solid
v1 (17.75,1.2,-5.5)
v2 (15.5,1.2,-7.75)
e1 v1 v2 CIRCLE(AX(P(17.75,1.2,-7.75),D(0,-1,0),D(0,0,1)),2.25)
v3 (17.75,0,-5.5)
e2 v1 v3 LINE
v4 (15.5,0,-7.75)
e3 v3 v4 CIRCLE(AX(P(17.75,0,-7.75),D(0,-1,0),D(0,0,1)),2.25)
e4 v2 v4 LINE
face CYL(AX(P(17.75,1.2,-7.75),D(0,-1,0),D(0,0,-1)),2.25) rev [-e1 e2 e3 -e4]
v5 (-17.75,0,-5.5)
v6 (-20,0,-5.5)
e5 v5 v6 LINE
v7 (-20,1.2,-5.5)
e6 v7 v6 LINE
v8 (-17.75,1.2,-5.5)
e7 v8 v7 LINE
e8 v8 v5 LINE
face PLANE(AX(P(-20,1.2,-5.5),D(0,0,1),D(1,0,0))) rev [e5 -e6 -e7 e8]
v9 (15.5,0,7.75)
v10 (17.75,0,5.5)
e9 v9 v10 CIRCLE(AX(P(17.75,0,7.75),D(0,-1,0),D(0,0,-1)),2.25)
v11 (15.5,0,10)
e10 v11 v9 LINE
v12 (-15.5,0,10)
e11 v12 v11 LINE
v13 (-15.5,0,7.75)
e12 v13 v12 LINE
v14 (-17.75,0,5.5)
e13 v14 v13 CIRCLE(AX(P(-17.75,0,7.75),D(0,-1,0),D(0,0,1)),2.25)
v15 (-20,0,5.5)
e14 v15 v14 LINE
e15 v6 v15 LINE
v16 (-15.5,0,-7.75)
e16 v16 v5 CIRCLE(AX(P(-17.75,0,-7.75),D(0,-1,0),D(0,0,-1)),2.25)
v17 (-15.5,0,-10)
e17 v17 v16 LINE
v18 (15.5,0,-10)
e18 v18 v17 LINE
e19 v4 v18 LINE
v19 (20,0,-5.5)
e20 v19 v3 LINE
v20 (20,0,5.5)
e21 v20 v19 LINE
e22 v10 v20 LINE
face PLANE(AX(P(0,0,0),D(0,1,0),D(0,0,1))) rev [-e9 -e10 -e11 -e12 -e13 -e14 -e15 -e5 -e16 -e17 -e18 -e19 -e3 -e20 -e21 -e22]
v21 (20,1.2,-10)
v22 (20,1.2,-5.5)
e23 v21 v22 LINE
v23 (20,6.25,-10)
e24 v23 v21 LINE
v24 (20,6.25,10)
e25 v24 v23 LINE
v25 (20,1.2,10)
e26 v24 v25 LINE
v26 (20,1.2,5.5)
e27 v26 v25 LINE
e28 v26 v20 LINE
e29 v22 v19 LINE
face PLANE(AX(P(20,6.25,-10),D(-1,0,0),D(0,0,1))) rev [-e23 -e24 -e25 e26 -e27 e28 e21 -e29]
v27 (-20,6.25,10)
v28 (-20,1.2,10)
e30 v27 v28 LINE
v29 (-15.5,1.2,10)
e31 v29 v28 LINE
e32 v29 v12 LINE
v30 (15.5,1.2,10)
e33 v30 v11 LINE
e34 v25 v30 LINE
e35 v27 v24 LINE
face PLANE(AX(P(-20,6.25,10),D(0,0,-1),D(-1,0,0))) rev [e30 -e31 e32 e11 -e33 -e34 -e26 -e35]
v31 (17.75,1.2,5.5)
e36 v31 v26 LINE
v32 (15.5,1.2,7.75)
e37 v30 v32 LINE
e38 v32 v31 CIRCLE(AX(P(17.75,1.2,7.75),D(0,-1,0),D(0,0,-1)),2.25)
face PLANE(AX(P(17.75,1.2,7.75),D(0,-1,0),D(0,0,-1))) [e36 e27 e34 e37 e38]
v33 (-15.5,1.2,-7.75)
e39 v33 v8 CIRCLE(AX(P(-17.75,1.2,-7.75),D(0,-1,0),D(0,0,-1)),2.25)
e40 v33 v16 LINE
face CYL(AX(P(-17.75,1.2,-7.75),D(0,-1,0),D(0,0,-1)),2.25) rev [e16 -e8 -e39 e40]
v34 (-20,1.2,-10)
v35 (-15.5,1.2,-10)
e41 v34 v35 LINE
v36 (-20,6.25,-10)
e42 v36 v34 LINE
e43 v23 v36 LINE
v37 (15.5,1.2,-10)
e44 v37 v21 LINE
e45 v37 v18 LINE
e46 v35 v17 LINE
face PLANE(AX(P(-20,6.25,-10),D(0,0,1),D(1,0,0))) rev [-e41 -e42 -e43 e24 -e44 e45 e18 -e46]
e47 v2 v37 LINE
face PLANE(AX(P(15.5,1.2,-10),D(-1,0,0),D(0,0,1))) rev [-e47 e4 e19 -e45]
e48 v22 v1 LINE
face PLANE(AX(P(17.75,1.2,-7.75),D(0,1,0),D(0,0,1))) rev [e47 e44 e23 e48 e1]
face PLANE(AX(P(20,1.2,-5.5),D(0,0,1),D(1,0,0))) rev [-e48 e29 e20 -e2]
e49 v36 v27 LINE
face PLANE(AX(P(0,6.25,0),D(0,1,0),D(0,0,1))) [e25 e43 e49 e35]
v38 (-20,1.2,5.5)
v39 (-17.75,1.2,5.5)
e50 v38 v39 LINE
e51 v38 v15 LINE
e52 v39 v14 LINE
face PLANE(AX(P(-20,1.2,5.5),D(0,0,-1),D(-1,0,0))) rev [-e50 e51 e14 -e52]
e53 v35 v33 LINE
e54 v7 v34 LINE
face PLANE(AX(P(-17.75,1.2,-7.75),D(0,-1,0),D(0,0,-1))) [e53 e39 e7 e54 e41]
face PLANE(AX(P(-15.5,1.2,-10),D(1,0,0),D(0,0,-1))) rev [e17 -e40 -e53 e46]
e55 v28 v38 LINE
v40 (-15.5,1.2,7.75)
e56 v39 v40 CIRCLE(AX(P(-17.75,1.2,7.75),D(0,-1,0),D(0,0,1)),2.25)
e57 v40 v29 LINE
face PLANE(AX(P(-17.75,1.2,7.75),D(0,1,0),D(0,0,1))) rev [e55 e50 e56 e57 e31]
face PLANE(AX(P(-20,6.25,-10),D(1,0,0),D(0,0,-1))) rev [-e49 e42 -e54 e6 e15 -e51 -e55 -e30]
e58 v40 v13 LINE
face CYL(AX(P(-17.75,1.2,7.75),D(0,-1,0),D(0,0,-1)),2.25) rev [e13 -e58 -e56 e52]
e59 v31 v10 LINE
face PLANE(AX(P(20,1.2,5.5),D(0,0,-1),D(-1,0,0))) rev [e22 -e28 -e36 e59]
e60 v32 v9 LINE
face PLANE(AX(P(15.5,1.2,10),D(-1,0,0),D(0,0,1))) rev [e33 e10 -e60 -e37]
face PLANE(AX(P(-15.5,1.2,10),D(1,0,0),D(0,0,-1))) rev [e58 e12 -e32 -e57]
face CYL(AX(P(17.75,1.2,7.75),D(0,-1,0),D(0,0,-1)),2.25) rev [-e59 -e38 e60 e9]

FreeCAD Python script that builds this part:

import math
import FreeCAD as App
import Part
import Sketcher
Q = App.Units.Quantity


def add_polygon(sketch, points):
    """Adds a closed chain of lines whose ends are joined by coincident constraints."""
    first, n = sketch.GeometryCount, len(points)
    for a, b in zip(points, points[1:] + points[:1]):
        sketch.addGeometry(Part.LineSegment(App.Vector(*a, 0), App.Vector(*b, 0)), False)
    for i in range(n):
        sketch.addConstraint(Sketcher.Constraint("Coincident", first + i, 2, first + (i + 1) % n, 1))

doc = App.newDocument("Part")
body = doc.addObject("PartDesign::Body", "Body")

sketch1 = body.newObject("Sketcher::SketchObject", "Sketch")
sketch1.AttachmentSupport = (doc.getObject("XZ_Plane"), [""])
sketch1.MapMode = "FlatFace"
add_polygon(sketch1, [(-20, -10), (-20, 10), (20, 10), (20, -10)])
sketch1.addConstraint(Sketcher.Constraint("Vertical", 0))
sketch1.addConstraint(Sketcher.Constraint("Horizontal", 1))
sketch1.addConstraint(Sketcher.Constraint("Vertical", 2))
sketch1.addConstraint(Sketcher.Constraint("Horizontal", 3))
sketch1.addConstraint(Sketcher.Constraint("Symmetric", 0, 2, 2, 2, -1, 1))
sketch1.addConstraint(Sketcher.Constraint("DistanceX", 1, 1, 1, 2, Q("40 mm")))
sketch1.addConstraint(Sketcher.Constraint("DistanceY", 0, 1, 0, 2, Q("20 mm")))
pad1 = body.newObject("PartDesign::Pad", "Pad")
pad1.Profile = sketch1
pad1.Length = 6.25
pad1.Reversed = True

sketch2 = body.newObject("Sketcher::SketchObject", "Sketch001")
sketch2.AttachmentSupport = (doc.getObject("XZ_Plane"), [""])
sketch2.MapMode = "FlatFace"
sketch2.addGeometry(Part.LineSegment(App.Vector(15.5, 10, 0), App.Vector(15.5, 7.75, 0)), False)
sketch2.addGeometry(Part.ArcOfCircle(Part.Circle(App.Vector(17.75, 7.75, 0), App.Vector(0, 0, 1), 2.25), math.radians(180), math.radians(270)), False)
sketch2.addGeometry(Part.LineSegment(App.Vector(17.75, 5.5, 0), App.Vector(20, 5.5, 0)), False)
sketch2.addGeometry(Part.LineSegment(App.Vector(20, 5.5, 0), App.Vector(20, 10, 0)), False)
sketch2.addGeometry(Part.LineSegment(App.Vector(20, 10, 0), App.Vector(15.5, 10, 0)), False)
sketch2.addGeometry(Part.LineSegment(App.Vector(-15.5, 10, 0), App.Vector(-20, 10, 0)), False)
sketch2.addGeometry(Part.LineSegment(App.Vector(-20, 10, 0), App.Vector(-20, 5.5, 0)), False)
sketch2.addGeometry(Part.LineSegment(App.Vector(-20, 5.5, 0), App.Vector(-17.75, 5.5, 0)), False)
sketch2.addGeometry(Part.ArcOfCircle(Part.Circle(App.Vector(-17.75, 7.75, 0), App.Vector(0, 0, 1), 2.25), math.radians(-90), math.radians(0)), False)
sketch2.addGeometry(Part.LineSegment(App.Vector(-15.5, 7.75, 0), App.Vector(-15.5, 10, 0)), False)
sketch2.addGeometry(Part.LineSegment(App.Vector(15.5, -10, 0), App.Vector(20, -10, 0)), False)
sketch2.addGeometry(Part.LineSegment(App.Vector(20, -10, 0), App.Vector(20, -5.5, 0)), False)
sketch2.addGeometry(Part.LineSegment(App.Vector(20, -5.5, 0), App.Vector(17.75, -5.5, 0)), False)
sketch2.addGeometry(Part.ArcOfCircle(Part.Circle(App.Vector(17.75, -7.75, 0), App.Vector(0, 0, 1), 2.25), math.radians(90), math.radians(180)), False)
sketch2.addGeometry(Part.LineSegment(App.Vector(15.5, -7.75, 0), App.Vector(15.5, -10, 0)), False)
sketch2.addGeometry(Part.LineSegment(App.Vector(-15.5, -10, 0), App.Vector(-15.5, -7.75, 0)), False)
sketch2.addGeometry(Part.ArcOfCircle(Part.Circle(App.Vector(-17.75, -7.75, 0), App.Vector(0, 0, 1), 2.25), math.radians(0), math.radians(90)), False)
sketch2.addGeometry(Part.LineSegment(App.Vector(-17.75, -5.5, 0), App.Vector(-20, -5.5, 0)), False)
sketch2.addGeometry(Part.LineSegment(App.Vector(-20, -5.5, 0), App.Vector(-20, -10, 0)), False)
sketch2.addGeometry(Part.LineSegment(App.Vector(-20, -10, 0), App.Vector(-15.5, -10, 0)), False)
sketch2.addConstraint(Sketcher.Constraint("Tangent", 0, 2, 1, 1))
sketch2.addConstraint(Sketcher.Constraint("Tangent", 1, 2, 2, 1))
sketch2.addConstraint(Sketcher.Constraint("Coincident", 2, 2, 3, 1))
sketch2.addConstraint(Sketcher.Constraint("Coincident", 3, 2, 4, 1))
sketch2.addConstraint(Sketcher.Constraint("Coincident", 4, 2, 0, 1))
sketch2.addConstraint(Sketcher.Constraint("Coincident", 5, 2, 6, 1))
sketch2.addConstraint(Sketcher.Constraint("Coincident", 6, 2, 7, 1))
sketch2.addConstraint(Sketcher.Constraint("Tangent", 7, 2, 8, 1))
sketch2.addConstraint(Sketcher.Constraint("Tangent", 8, 2, 9, 1))
sketch2.addConstraint(Sketcher.Constraint("Coincident", 9, 2, 5, 1))
sketch2.addConstraint(Sketcher.Constraint("Coincident", 10, 2, 11, 1))
sketch2.addConstraint(Sketcher.Constraint("Coincident", 11, 2, 12, 1))
sketch2.addConstraint(Sketcher.Constraint("Tangent", 12, 2, 13, 1))
sketch2.addConstraint(Sketcher.Constraint("Tangent", 13, 2, 14, 1))
sketch2.addConstraint(Sketcher.Constraint("Coincident", 14, 2, 10, 1))
sketch2.addConstraint(Sketcher.Constraint("Tangent", 15, 2, 16, 1))
sketch2.addConstraint(Sketcher.Constraint("Tangent", 16, 2, 17, 1))
sketch2.addConstraint(Sketcher.Constraint("Coincident", 17, 2, 18, 1))
sketch2.addConstraint(Sketcher.Constraint("Coincident", 18, 2, 19, 1))
sketch2.addConstraint(Sketcher.Constraint("Coincident", 19, 2, 15, 1))
sketch2.addConstraint(Sketcher.Constraint("Vertical", 0))
sketch2.addConstraint(Sketcher.Constraint("Horizontal", 2))
sketch2.addConstraint(Sketcher.Constraint("Vertical", 3))
sketch2.addConstraint(Sketcher.Constraint("Horizontal", 4))
sketch2.addConstraint(Sketcher.Constraint("Horizontal", 5))
sketch2.addConstraint(Sketcher.Constraint("Vertical", 6))
sketch2.addConstraint(Sketcher.Constraint("Horizontal", 7))
sketch2.addConstraint(Sketcher.Constraint("Vertical", 9))
sketch2.addConstraint(Sketcher.Constraint("Horizontal", 10))
sketch2.addConstraint(Sketcher.Constraint("Vertical", 11))
sketch2.addConstraint(Sketcher.Constraint("Horizontal", 12))
sketch2.addConstraint(Sketcher.Constraint("Vertical", 14))
sketch2.addConstraint(Sketcher.Constraint("Vertical", 15))
sketch2.addConstraint(Sketcher.Constraint("Horizontal", 17))
sketch2.addConstraint(Sketcher.Constraint("Vertical", 18))
sketch2.addConstraint(Sketcher.Constraint("Horizontal", 19))
sketch2.addConstraint(Sketcher.Constraint("Equal", 1, 8))
sketch2.addConstraint(Sketcher.Constraint("Equal", 8, 13))
sketch2.addConstraint(Sketcher.Constraint("Equal", 13, 16))
sketch2.addConstraint(Sketcher.Constraint("Symmetric", 8, 3, 13, 3, -1, 1))
sketch2.addConstraint(Sketcher.Constraint("Symmetric", 1, 3, 16, 3, -1, 1))
sketch2.addConstraint(Sketcher.Constraint("Symmetric", 5, 2, 10, 2, -1, 1))
sketch2.addConstraint(Sketcher.Constraint("Symmetric", 3, 2, 18, 2, -1, 1))
sketch2.addConstraint(Sketcher.Constraint("Symmetric", 1, 3, 8, 3, -2))
sketch2.addConstraint(Sketcher.Constraint("Symmetric", 3, 2, 5, 2, -2))
sketch2.addConstraint(Sketcher.Constraint("Equal", 17, 0))
sketch2.addConstraint(Sketcher.Constraint("Radius", 1, Q("2.25 mm")))
sketch2.addConstraint(Sketcher.Constraint("DistanceX", 4, 2, 4, 1, Q("4.5 mm")))
sketch2.addConstraint(Sketcher.Constraint("DistanceX", -1, 1, 2, 2, Q("20 mm")))
sketch2.addConstraint(Sketcher.Constraint("DistanceY", -1, 1, 3, 2, Q("10 mm")))
pocket1 = body.newObject("PartDesign::Pocket", "Pocket")
pocket1.Profile = sketch2
pocket1.Length = 1.2

doc.recompute()
